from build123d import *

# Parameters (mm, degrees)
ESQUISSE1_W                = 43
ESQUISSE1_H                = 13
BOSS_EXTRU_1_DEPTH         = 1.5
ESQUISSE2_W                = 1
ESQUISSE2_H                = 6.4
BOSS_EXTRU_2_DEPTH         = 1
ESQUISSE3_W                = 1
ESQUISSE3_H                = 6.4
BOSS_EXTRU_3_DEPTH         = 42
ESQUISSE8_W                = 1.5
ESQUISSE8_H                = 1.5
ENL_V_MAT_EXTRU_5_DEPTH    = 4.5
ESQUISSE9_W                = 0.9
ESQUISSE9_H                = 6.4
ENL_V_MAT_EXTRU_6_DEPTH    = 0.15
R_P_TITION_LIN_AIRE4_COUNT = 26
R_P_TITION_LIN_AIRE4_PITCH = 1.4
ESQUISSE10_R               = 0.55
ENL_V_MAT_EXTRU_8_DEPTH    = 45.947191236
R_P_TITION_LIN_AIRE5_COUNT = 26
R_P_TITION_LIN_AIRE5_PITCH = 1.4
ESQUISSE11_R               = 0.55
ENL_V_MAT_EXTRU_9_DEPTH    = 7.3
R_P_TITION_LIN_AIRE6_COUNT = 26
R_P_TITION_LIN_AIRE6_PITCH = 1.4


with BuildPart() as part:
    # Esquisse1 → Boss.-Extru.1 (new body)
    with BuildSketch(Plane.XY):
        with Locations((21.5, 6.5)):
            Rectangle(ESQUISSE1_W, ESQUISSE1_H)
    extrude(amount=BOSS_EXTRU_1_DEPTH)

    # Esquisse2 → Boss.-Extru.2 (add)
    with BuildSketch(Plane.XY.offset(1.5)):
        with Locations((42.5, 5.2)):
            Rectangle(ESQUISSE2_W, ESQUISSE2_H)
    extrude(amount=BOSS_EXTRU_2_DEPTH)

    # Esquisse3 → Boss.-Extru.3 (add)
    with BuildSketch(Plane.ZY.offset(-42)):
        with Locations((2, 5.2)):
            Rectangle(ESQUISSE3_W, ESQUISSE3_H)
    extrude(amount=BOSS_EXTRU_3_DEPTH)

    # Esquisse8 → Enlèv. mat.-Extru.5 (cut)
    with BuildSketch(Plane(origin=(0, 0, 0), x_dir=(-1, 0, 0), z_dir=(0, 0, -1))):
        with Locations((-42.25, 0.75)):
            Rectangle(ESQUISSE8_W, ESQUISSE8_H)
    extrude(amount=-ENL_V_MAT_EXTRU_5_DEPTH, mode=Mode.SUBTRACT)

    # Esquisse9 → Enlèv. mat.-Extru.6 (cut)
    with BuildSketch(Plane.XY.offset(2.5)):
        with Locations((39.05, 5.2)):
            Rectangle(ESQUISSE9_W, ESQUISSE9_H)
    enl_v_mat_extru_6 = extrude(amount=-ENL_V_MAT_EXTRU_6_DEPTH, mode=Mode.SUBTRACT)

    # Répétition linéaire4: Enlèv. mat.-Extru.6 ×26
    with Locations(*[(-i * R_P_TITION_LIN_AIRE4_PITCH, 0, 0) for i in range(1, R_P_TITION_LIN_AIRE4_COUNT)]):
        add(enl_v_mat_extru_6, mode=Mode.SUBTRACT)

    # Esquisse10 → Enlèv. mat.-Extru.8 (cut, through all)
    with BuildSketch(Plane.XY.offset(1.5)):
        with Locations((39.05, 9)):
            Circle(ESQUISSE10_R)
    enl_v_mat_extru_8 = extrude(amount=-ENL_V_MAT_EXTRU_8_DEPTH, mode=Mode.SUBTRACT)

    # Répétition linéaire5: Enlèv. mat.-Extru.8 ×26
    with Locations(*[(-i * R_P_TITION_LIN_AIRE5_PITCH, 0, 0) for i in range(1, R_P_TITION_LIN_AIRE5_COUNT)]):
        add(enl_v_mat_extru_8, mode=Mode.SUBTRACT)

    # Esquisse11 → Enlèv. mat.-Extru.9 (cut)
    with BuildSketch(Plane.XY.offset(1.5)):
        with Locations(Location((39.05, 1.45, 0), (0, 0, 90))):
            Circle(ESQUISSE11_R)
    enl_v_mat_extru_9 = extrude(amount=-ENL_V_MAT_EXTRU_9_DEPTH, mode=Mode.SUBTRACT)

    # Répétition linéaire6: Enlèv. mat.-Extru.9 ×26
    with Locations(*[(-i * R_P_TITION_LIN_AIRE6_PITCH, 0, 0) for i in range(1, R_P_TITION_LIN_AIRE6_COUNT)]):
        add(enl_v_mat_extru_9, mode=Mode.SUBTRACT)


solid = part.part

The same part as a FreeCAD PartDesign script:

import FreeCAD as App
import Part
import Sketcher
from FreeCAD import Vector
Q = App.Units.Quantity

doc = App.newDocument("Part")
body = doc.addObject("PartDesign::Body", "Body")

# Sketch on XY plane
sketch1 = body.newObject("Sketcher::SketchObject", "Sketch")
sketch1.AttachmentSupport = (doc.getObject("XY_Plane"), [""])
sketch1.MapMode = "FlatFace"
sketch1.addGeometry([
    Part.LineSegment(Vector(0, 13, 0), Vector(0, 0, 0)),
    Part.LineSegment(Vector(0, 0, 0), Vector(43, 0, 0)),
    Part.LineSegment(Vector(43, 0, 0), Vector(43, 13, 0)),
    Part.LineSegment(Vector(43, 13, 0), Vector(0, 13, 0)),
], False)
sketch1.addConstraint([
    Sketcher.Constraint("Coincident", 0, 2, 1, 1),
    Sketcher.Constraint("Coincident", 1, 2, 2, 1),
    Sketcher.Constraint("Coincident", 2, 2, 3, 1),
    Sketcher.Constraint("Coincident", 3, 2, 0, 1),
    Sketcher.Constraint("Vertical", 0),
    Sketcher.Constraint("Horizontal", 1),
    Sketcher.Constraint("Vertical", 2),
    Sketcher.Constraint("Horizontal", 3),
    Sketcher.Constraint("Coincident", 0, 2, -1, 1),
    Sketcher.Constraint("DistanceX", 1, 1, 1, 2, Q("43 mm")),
    Sketcher.Constraint("DistanceY", 0, 2, 0, 1, Q("13 mm")),
])
pad1 = body.newObject("PartDesign::Pad", "Pad")
pad1.Profile = sketch1
pad1.Length = 1.5

# Sketch on XY plane
sketch2 = body.newObject("Sketcher::SketchObject", "Sketch001")
sketch2.AttachmentSupport = (doc.getObject("XY_Plane"), [""])
sketch2.MapMode = "FlatFace"
sketch2.AttachmentOffset = App.Placement(Vector(0, 0, 1.5), App.Rotation())
sketch2.addGeometry([
    Part.LineSegment(Vector(42, 8.4, 0), Vector(42, 2, 0)),
    Part.LineSegment(Vector(42, 2, 0), Vector(43, 2, 0)),
    Part.LineSegment(Vector(43, 2, 0), Vector(43, 8.4, 0)),
    Part.LineSegment(Vector(43, 8.4, 0), Vector(42, 8.4, 0)),
], False)
sketch2.addConstraint([
    Sketcher.Constraint("Coincident", 0, 2, 1, 1),
    Sketcher.Constraint("Coincident", 1, 2, 2, 1),
    Sketcher.Constraint("Coincident", 2, 2, 3, 1),
    Sketcher.Constraint("Coincident", 3, 2, 0, 1),
    Sketcher.Constraint("Vertical", 0),
    Sketcher.Constraint("Horizontal", 1),
    Sketcher.Constraint("Vertical", 2),
    Sketcher.Constraint("Horizontal", 3),
    Sketcher.Constraint("DistanceX", 1, 1, 1, 2, Q("1 mm")),
    Sketcher.Constraint("DistanceY", 0, 2, 0, 1, Q("6.4 mm")),
    Sketcher.Constraint("DistanceX", -1, 1, 0, 2, Q("42 mm")),
    Sketcher.Constraint("DistanceY", -1, 1, 0, 2, Q("2 mm")),
])
pad2 = body.newObject("PartDesign::Pad", "Pad001")
pad2.Profile = sketch2
pad2.Length = 1

# Sketch on YZ plane
sketch3 = body.newObject("Sketcher::SketchObject", "Sketch002")
sketch3.AttachmentSupport = (doc.getObject("YZ_Plane"), [""])
sketch3.MapMode = "FlatFace"
sketch3.AttachmentOffset = App.Placement(Vector(0, 0, 42), App.Rotation())
sketch3.addGeometry([
    Part.LineSegment(Vector(8.4, 1.5, 0), Vector(2, 1.5, 0)),
    Part.LineSegment(Vector(2, 1.5, 0), Vector(2, 2.5, 0)),
    Part.LineSegment(Vector(2, 2.5, 0), Vector(8.4, 2.5, 0)),
    Part.LineSegment(Vector(8.4, 2.5, 0), Vector(8.4, 1.5, 0)),
], False)
sketch3.addConstraint([
    Sketcher.Constraint("Coincident", 0, 2, 1, 1),
    Sketcher.Constraint("Coincident", 1, 2, 2, 1),
    Sketcher.Constraint("Coincident", 2, 2, 3, 1),
    Sketcher.Constraint("Coincident", 3, 2, 0, 1),
    Sketcher.Constraint("Horizontal", 0),
    Sketcher.Constraint("Vertical", 1),
    Sketcher.Constraint("Horizontal", 2),
    Sketcher.Constraint("Vertical", 3),
    Sketcher.Constraint("DistanceY", 1, 1, 1, 2, Q("1 mm")),
    Sketcher.Constraint("DistanceX", 0, 2, 0, 1, Q("6.4 mm")),
    Sketcher.Constraint("DistanceX", -1, 1, 0, 2, Q("2 mm")),
    Sketcher.Constraint("DistanceY", -1, 1, 0, 2, Q("1.5 mm")),
])
pad3 = body.newObject("PartDesign::Pad", "Pad002")
pad3.Profile = sketch3
pad3.Length = 42
pad3.Reversed = True

# Sketch on XY plane
sketch4 = body.newObject("Sketcher::SketchObject", "Sketch003")
sketch4.AttachmentSupport = (doc.getObject("XY_Plane"), [""])
sketch4.MapMode = "FlatFace"
sketch4.addGeometry([
    Part.LineSegment(Vector(43, 1.5, 0), Vector(43, 0, 0)),
    Part.LineSegment(Vector(43, 0, 0), Vector(41.5, 0, 0)),
    Part.LineSegment(Vector(41.5, 0, 0), Vector(41.5, 1.5, 0)),
    Part.LineSegment(Vector(41.5, 1.5, 0), Vector(43, 1.5, 0)),
], False)
sketch4.addConstraint([
    Sketcher.Constraint("Coincident", 0, 2, 1, 1),
    Sketcher.Constraint("Coincident", 1, 2, 2, 1),
    Sketcher.Constraint("Coincident", 2, 2, 3, 1),
    Sketcher.Constraint("Coincident", 3, 2, 0, 1),
    Sketcher.Constraint("Vertical", 0),
    Sketcher.Constraint("Horizontal", 1),
    Sketcher.Constraint("Vertical", 2),
    Sketcher.Constraint("Horizontal", 3),
    Sketcher.Constraint("PointOnObject", 0, 2, -1),
    Sketcher.Constraint("Equal", 3, 0),
    Sketcher.Constraint("DistanceX", 1, 2, 1, 1, Q("1.5 mm")),
    Sketcher.Constraint("DistanceX", -1, 1, 0, 2, Q("43 mm")),
])
pocket1 = body.newObject("PartDesign::Pocket", "Pocket")
pocket1.Profile = sketch4
pocket1.Length = 4.5
pocket1.Reversed = True

# Sketch on XY plane
sketch5 = body.newObject("Sketcher::SketchObject", "Sketch004")
sketch5.AttachmentSupport = (doc.getObject("XY_Plane"), [""])
sketch5.MapMode = "FlatFace"
sketch5.AttachmentOffset = App.Placement(Vector(0, 0, 2.5), App.Rotation())
sketch5.addGeometry([
    Part.LineSegment(Vector(38.6, 8.4, 0), Vector(38.6, 2, 0)),
    Part.LineSegment(Vector(38.6, 2, 0), Vector(39.5, 2, 0)),
    Part.LineSegment(Vector(39.5, 2, 0), Vector(39.5, 8.4, 0)),
    Part.LineSegment(Vector(39.5, 8.4, 0), Vector(38.6, 8.4, 0)),
], False)
sketch5.addConstraint([
    Sketcher.Constraint("Coincident", 0, 2, 1, 1),
    Sketcher.Constraint("Coincident", 1, 2, 2, 1),
    Sketcher.Constraint("Coincident", 2, 2, 3, 1),
    Sketcher.Constraint("Coincident", 3, 2, 0, 1),
    Sketcher.Constraint("Vertical", 0),
    Sketcher.Constraint("Horizontal", 1),
    Sketcher.Constraint("Vertical", 2),
    Sketcher.Constraint("Horizontal", 3),
    Sketcher.Constraint("DistanceX", 1, 1, 1, 2, Q("0.9 mm")),
    Sketcher.Constraint("DistanceY", 0, 2, 0, 1, Q("6.4 mm")),
    Sketcher.Constraint("DistanceY", -1, 1, 0, 2, Q("2 mm")),
    Sketcher.Constraint("DistanceX", -1, 1, 0, 2, Q("38.6 mm")),
])
pocket2 = body.newObject("PartDesign::Pocket", "Pocket001")
pocket2.Profile = sketch5
pocket2.Length = 0.15
doc.recompute()

linearpattern = body.newObject("PartDesign::LinearPattern", "LinearPattern")
linearpattern.Originals = [pocket2]
linearpattern.Direction = (doc.getObject("X_Axis"), [""])
linearpattern.Mode = "offset"
linearpattern.Offset = 1.4
linearpattern.Occurrences = 26
linearpattern.Reversed = True
body.Tip = linearpattern

# Sketch on XY plane
sketch6 = body.newObject("Sketcher::SketchObject", "Sketch005")
sketch6.AttachmentSupport = (doc.getObject("XY_Plane"), [""])
sketch6.MapMode = "FlatFace"
sketch6.AttachmentOffset = App.Placement(Vector(0, 0, 1.5), App.Rotation())
sketch6.addGeometry(Part.Circle(Vector(39, 9, 0), Vector(0, 0, 1), 0.6), False)
sketch6.addConstraint([
    Sketcher.Constraint("Diameter", 0, Q("1.1 mm")),
    Sketcher.Constraint("DistanceY", -1, 1, 0, 3, Q("9 mm")),
    Sketcher.Constraint("DistanceX", -1, 1, 0, 3, Q("39.05 mm")),
])
pocket3 = body.newObject("PartDesign::Pocket", "Pocket002")
pocket3.Profile = sketch6
pocket3.Type = "ThroughAll"
doc.recompute()

linearpattern2 = body.newObject("PartDesign::LinearPattern", "LinearPattern001")
linearpattern2.Originals = [pocket3]
linearpattern2.Direction = (doc.getObject("X_Axis"), [""])
linearpattern2.Mode = "offset"
linearpattern2.Offset = 1.4
linearpattern2.Occurrences = 26
linearpattern2.Reversed = True
body.Tip = linearpattern2

# Sketch on XY plane
sketch7 = body.newObject("Sketcher::SketchObject", "Sketch006")
sketch7.AttachmentSupport = (doc.getObject("XY_Plane"), [""])
sketch7.MapMode = "FlatFace"
sketch7.AttachmentOffset = App.Placement(Vector(0, 0, 1.5), App.Rotation())
sketch7.addGeometry(Part.Circle(Vector(39, 1.4, 0), Vector(0, 0, 1), 0.6), False)
sketch7.addConstraint([
    Sketcher.Constraint("Diameter", 0, Q("1.1 mm")),
    Sketcher.Constraint("DistanceX", -1, 1, 0, 3, Q("39.05 mm")),
    Sketcher.Constraint("DistanceY", -1, 1, 0, 3, Q("1.45 mm")),
])
pocket4 = body.newObject("PartDesign::Pocket", "Pocket003")
pocket4.Profile = sketch7
pocket4.Length = 7.3
doc.recompute()

linearpattern3 = body.newObject("PartDesign::LinearPattern", "LinearPattern002")
linearpattern3.Originals = [pocket4]
linearpattern3.Direction = (doc.getObject("X_Axis"), [""])
linearpattern3.Mode = "offset"
linearpattern3.Offset = 1.4
linearpattern3.Occurrences = 26
linearpattern3.Reversed = True
body.Tip = linearpattern3

doc.recompute()
